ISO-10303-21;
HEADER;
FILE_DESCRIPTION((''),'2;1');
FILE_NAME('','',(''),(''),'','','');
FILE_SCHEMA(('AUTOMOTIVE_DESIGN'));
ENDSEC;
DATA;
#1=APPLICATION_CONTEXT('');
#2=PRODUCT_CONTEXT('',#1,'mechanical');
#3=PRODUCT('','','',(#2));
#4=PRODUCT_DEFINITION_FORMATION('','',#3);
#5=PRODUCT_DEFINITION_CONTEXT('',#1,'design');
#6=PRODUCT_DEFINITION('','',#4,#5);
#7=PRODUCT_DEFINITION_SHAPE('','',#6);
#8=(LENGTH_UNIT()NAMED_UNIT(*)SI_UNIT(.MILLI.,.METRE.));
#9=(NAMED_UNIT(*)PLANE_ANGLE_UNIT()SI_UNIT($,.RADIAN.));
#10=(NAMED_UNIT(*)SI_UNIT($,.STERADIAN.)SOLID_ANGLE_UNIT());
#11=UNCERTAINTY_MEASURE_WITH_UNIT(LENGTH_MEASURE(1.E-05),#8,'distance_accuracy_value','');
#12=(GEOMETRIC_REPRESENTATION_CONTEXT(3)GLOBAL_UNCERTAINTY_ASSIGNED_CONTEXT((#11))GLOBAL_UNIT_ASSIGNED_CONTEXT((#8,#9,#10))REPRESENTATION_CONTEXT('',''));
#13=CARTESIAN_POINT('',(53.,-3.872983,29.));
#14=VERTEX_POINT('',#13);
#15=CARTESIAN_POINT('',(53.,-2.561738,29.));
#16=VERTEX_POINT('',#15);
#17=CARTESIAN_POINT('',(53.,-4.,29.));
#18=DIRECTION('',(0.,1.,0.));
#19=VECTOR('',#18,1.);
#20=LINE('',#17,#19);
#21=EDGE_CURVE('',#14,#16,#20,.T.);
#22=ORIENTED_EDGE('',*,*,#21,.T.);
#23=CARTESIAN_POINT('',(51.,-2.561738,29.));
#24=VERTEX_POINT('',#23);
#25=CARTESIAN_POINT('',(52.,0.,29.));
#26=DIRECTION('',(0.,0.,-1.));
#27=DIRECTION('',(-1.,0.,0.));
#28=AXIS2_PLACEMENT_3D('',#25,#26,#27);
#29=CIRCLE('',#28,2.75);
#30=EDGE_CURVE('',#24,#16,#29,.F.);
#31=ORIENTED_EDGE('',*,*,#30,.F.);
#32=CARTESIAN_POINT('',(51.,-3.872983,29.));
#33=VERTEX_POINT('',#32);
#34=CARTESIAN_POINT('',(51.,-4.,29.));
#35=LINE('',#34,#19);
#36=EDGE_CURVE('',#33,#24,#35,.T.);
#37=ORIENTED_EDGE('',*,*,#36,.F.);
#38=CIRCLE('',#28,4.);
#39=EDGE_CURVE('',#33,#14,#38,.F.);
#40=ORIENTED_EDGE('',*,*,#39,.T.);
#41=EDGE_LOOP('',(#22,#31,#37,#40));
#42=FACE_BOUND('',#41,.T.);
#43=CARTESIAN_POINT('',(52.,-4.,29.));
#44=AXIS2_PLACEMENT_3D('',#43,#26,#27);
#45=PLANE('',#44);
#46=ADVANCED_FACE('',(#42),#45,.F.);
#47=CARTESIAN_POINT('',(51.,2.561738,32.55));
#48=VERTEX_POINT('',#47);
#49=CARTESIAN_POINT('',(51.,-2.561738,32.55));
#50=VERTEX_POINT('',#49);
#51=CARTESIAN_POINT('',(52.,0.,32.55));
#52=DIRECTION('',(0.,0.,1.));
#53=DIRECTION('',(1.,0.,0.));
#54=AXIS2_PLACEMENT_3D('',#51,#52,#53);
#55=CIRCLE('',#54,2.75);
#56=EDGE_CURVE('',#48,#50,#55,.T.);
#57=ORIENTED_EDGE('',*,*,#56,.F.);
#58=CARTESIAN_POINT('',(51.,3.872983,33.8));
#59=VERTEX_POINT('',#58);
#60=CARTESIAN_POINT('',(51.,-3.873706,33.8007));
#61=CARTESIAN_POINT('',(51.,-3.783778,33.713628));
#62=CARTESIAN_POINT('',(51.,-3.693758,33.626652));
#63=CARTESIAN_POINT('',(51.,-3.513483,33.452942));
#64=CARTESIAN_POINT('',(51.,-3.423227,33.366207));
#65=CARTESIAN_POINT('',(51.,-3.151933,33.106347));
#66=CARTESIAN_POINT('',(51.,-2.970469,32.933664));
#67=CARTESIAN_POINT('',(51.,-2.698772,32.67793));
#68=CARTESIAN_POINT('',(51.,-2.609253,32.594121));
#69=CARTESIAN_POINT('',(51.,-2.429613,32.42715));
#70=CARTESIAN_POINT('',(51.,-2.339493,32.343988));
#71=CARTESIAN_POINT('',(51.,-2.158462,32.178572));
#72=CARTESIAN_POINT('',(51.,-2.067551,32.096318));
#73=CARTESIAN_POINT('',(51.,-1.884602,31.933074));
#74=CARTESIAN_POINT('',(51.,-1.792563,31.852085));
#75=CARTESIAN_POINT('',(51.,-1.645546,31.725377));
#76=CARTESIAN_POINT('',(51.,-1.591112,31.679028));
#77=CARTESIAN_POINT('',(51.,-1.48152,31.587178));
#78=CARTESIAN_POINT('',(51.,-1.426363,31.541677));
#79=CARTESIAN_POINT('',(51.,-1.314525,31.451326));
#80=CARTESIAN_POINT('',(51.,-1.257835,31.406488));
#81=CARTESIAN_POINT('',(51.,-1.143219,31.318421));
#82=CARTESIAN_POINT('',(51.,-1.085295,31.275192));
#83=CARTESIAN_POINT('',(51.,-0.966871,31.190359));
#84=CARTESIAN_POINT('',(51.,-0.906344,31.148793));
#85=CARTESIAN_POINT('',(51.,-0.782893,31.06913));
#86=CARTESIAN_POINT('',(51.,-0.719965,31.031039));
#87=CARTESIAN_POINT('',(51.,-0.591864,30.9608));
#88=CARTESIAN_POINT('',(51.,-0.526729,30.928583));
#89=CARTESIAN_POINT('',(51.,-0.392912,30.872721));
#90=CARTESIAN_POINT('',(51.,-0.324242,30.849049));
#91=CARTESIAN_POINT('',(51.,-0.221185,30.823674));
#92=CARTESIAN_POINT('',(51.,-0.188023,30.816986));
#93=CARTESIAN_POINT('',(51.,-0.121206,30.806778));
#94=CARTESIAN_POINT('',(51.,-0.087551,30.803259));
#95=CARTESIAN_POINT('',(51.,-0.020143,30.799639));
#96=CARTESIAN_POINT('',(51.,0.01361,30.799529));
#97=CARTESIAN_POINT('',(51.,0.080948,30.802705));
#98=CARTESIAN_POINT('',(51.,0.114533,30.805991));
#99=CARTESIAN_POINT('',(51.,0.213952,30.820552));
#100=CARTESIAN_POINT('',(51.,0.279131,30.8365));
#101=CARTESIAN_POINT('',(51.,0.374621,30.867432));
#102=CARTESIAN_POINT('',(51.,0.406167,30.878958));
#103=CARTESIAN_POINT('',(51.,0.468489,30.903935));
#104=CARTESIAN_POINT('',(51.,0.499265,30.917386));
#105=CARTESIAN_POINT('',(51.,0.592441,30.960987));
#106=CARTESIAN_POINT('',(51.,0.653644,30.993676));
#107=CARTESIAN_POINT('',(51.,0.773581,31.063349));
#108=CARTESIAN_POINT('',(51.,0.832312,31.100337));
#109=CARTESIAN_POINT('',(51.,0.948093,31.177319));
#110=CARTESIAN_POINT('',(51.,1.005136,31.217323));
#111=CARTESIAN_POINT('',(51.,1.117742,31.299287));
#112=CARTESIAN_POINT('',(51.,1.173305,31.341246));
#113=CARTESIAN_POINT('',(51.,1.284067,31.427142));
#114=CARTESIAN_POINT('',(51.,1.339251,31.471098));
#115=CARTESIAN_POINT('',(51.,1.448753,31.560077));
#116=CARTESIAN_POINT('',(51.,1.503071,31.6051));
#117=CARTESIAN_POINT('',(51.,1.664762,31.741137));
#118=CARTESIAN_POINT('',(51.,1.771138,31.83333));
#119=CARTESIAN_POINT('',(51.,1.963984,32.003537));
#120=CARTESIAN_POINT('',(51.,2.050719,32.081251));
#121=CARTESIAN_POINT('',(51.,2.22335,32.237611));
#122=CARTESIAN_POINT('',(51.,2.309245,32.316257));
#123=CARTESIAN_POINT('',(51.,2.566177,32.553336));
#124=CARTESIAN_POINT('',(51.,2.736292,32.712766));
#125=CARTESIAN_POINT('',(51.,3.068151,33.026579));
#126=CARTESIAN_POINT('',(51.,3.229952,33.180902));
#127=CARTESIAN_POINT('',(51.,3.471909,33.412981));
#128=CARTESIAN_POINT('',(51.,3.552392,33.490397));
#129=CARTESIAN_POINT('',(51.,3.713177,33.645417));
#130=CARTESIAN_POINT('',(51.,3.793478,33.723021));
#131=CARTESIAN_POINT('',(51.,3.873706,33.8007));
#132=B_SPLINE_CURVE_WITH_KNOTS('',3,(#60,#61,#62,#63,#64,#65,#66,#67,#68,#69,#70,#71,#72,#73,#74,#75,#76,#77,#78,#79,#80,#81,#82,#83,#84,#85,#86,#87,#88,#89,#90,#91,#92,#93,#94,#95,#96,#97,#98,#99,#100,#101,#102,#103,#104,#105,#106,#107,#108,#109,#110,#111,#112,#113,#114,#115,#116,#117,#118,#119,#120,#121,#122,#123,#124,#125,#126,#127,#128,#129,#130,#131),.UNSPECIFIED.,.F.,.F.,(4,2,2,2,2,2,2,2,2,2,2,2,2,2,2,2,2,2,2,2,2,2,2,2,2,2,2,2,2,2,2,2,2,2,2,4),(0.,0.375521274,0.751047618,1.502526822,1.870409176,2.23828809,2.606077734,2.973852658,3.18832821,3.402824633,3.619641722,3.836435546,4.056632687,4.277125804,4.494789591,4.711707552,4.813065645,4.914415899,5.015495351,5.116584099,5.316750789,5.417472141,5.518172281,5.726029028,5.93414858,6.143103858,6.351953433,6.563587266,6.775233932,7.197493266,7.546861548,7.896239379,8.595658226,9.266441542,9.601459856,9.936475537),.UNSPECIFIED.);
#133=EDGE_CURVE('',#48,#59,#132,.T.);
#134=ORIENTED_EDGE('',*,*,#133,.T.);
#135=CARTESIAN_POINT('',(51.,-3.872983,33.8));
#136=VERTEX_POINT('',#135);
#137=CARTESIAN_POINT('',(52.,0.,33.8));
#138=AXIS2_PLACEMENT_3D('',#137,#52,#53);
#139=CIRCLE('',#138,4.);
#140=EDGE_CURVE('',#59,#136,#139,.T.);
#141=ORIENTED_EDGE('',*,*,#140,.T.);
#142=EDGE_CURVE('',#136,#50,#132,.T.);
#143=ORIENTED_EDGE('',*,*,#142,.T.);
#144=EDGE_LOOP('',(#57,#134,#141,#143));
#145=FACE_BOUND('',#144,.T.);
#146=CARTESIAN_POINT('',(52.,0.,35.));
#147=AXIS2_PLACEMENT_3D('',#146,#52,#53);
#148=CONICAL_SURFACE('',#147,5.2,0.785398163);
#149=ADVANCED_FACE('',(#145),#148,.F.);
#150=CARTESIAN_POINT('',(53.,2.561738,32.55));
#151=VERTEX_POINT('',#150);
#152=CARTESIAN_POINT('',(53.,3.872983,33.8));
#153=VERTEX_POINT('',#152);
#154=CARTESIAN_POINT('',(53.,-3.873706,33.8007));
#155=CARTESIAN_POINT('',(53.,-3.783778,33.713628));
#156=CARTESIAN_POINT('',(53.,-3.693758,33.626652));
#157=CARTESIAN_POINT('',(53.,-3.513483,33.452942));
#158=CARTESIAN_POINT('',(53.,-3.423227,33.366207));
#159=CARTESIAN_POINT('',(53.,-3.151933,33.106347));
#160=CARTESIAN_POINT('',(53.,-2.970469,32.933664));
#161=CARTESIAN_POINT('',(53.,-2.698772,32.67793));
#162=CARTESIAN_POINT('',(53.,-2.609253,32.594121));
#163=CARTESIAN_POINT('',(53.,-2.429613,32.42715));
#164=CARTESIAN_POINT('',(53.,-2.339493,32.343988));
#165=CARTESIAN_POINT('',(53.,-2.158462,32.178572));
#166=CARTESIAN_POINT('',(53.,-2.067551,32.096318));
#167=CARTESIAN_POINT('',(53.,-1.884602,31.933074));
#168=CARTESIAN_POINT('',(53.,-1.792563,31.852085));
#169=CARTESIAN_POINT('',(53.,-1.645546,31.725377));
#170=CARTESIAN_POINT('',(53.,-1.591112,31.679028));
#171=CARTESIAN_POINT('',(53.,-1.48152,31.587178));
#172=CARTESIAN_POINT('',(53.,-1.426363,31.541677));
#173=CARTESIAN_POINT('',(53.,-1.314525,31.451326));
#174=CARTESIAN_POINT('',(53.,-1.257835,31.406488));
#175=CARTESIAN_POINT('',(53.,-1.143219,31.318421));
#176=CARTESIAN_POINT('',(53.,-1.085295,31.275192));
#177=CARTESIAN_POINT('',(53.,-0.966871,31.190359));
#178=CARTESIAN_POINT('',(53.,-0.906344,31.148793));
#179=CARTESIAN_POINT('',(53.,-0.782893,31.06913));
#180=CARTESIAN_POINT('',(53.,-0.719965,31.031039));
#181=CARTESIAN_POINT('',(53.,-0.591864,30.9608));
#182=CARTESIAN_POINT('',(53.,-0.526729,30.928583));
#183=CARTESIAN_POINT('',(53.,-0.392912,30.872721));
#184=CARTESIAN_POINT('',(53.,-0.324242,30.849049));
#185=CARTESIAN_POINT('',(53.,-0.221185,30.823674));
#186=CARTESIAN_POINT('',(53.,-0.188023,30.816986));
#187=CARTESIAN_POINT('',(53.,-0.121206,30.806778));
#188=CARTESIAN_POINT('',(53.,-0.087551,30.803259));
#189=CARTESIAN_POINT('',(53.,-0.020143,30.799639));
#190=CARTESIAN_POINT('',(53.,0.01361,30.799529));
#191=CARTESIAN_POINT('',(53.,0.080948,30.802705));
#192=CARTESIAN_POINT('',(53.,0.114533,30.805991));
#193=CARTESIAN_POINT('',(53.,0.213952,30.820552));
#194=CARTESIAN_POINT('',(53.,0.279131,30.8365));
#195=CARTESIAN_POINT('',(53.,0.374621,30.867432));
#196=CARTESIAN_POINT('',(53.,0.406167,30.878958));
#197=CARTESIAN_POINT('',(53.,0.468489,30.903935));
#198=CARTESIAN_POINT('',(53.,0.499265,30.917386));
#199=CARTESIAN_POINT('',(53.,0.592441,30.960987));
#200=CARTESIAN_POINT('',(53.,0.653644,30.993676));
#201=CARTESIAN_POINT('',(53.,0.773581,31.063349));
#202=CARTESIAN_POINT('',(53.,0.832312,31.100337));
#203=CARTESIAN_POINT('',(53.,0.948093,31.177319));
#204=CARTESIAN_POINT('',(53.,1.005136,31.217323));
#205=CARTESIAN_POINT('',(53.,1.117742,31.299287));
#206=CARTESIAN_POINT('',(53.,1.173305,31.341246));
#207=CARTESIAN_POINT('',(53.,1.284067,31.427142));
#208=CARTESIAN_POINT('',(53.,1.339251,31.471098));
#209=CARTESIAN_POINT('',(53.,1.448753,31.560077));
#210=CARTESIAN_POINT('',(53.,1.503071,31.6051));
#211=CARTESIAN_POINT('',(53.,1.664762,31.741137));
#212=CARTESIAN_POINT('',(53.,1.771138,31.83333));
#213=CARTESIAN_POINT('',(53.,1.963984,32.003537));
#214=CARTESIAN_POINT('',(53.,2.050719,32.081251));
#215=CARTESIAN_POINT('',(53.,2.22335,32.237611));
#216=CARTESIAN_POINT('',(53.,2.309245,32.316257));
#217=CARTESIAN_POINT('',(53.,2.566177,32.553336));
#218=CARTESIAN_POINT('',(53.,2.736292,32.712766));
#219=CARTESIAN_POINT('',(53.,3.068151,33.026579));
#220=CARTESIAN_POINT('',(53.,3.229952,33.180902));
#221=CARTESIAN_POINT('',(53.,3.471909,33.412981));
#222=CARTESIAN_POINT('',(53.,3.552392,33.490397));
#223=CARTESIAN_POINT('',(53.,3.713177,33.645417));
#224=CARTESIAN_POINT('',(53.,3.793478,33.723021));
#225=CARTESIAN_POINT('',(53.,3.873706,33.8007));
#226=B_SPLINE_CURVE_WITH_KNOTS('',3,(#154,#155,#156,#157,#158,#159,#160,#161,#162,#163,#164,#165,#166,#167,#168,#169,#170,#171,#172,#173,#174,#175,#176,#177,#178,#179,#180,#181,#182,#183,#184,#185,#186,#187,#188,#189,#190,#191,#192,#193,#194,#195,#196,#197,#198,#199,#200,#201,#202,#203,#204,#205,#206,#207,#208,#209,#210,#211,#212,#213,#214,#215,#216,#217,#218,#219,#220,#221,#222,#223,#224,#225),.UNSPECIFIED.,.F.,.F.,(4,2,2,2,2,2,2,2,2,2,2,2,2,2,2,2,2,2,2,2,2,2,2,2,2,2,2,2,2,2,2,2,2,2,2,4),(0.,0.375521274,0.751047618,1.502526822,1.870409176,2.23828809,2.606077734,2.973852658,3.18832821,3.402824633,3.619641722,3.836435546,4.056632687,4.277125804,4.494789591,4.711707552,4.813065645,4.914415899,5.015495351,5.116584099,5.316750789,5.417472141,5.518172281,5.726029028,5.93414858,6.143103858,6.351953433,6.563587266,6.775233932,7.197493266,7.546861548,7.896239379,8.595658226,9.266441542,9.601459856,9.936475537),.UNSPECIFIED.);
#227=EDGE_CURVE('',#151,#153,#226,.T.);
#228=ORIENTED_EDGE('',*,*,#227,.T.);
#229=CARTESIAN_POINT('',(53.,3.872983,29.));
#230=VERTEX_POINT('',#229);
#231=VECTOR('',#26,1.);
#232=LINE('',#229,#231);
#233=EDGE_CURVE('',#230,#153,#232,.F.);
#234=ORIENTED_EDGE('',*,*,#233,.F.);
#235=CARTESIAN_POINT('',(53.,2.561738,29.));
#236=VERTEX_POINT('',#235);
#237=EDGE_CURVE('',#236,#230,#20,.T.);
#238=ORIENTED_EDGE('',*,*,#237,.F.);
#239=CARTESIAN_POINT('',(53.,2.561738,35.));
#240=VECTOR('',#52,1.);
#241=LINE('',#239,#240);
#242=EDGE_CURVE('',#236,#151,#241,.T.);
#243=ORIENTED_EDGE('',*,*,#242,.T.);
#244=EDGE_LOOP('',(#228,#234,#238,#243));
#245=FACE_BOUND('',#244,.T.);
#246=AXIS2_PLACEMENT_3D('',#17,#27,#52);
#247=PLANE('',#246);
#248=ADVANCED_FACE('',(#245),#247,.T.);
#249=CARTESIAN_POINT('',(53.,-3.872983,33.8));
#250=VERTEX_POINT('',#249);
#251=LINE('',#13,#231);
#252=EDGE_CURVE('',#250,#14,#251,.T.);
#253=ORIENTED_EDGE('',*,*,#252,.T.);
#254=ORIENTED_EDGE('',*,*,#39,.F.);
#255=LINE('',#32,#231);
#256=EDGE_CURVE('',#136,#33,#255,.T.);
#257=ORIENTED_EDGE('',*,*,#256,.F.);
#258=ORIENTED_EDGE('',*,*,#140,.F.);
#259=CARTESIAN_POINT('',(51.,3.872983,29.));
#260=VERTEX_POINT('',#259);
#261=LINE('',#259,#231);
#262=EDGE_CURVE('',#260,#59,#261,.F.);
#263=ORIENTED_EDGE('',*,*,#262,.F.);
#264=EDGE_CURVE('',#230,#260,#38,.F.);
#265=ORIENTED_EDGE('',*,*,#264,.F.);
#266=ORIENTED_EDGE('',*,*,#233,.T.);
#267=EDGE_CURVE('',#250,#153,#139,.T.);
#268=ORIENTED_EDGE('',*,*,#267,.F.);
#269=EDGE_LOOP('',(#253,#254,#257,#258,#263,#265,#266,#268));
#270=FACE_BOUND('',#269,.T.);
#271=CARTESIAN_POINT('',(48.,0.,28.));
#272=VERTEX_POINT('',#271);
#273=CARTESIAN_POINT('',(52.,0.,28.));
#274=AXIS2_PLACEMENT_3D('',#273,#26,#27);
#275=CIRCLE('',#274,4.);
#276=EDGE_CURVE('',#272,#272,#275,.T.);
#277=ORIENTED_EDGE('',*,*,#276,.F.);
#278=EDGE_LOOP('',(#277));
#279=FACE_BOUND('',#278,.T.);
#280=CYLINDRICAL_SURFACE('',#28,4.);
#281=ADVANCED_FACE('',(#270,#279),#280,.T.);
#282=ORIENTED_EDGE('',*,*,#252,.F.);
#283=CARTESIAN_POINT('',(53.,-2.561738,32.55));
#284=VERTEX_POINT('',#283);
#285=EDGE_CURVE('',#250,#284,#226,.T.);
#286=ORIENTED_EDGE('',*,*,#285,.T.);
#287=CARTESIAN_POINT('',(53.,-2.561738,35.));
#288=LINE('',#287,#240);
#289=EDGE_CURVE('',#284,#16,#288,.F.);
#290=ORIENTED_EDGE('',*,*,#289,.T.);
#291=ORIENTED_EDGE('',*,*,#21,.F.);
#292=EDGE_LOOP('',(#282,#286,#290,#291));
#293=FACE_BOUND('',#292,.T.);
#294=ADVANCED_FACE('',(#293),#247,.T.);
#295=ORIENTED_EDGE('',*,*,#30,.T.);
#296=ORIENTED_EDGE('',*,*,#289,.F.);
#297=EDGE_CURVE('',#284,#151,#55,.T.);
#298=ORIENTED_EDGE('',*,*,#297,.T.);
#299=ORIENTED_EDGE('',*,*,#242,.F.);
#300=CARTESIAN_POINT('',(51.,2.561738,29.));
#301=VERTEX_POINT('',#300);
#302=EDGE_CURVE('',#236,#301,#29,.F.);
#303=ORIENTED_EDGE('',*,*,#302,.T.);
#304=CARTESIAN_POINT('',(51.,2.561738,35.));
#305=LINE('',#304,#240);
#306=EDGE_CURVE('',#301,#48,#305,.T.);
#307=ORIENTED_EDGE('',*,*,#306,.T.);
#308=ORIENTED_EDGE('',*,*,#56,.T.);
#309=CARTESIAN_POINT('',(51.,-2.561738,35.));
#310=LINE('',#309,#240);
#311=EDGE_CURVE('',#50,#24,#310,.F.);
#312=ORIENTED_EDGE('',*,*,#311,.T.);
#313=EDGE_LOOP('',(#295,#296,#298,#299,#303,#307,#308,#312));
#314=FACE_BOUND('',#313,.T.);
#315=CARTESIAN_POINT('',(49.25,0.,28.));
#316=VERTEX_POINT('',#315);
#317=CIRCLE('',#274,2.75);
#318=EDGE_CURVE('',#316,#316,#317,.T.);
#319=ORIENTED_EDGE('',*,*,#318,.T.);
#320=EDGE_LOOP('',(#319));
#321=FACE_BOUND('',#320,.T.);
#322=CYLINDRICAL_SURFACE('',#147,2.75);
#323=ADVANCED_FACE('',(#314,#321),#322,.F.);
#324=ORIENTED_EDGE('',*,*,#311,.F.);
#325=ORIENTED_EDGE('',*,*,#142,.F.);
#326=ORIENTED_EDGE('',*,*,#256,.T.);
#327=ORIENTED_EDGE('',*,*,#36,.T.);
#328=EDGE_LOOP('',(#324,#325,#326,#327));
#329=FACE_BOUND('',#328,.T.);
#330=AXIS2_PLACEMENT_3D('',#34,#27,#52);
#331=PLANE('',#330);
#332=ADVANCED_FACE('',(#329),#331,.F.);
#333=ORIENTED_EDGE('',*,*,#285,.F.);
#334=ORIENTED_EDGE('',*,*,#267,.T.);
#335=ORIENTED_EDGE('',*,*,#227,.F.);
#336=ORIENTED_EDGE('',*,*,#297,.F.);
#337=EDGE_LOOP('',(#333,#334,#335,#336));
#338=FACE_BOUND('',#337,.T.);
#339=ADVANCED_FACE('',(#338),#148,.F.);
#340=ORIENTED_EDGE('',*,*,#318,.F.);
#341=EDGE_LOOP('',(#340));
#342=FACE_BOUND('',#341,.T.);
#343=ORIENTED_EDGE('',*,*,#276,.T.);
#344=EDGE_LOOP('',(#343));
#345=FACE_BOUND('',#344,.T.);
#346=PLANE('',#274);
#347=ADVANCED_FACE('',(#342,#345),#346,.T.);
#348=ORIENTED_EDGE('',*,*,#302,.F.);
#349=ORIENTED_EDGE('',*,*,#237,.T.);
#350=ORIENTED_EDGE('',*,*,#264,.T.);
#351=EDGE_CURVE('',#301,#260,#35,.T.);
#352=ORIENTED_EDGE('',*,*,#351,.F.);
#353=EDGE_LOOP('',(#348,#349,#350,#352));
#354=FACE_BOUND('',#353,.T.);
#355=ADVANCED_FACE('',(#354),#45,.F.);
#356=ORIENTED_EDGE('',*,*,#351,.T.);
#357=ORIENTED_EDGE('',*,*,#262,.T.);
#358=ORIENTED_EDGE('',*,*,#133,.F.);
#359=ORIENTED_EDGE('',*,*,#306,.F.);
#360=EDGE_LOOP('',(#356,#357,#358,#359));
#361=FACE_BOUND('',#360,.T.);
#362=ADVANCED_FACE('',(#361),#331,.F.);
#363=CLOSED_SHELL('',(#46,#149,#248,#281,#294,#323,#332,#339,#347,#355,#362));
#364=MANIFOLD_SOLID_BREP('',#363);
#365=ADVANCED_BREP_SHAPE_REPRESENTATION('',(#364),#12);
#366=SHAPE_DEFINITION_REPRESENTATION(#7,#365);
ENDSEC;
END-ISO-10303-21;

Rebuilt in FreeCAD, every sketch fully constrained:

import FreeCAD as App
import Part
import Sketcher

V = App.Vector

doc = App.newDocument("Part")
body = doc.addObject("PartDesign::Body", "Body")

# Sketch on XZ plane
sketch1 = body.newObject("Sketcher::SketchObject", "Sketch")
sketch1.AttachmentSupport = (doc.getObject("XZ_Plane"), [""])
sketch1.MapMode = "FlatFace"
sketch1.addGeometry([
    Part.LineSegment(V(48, 35, 0), V(52, 35, 0)),
    Part.LineSegment(V(52, 35, 0), V(52, 28, 0)),
    Part.LineSegment(V(52, 28, 0), V(48, 28, 0)),
    Part.LineSegment(V(48, 28, 0), V(48, 35, 0)),
], False)
sketch1.addGeometry(Part.LineSegment(V(52, 28, 0), V(52, 35, 0)), True)  # axis
sketch1.addConstraint([
    Sketcher.Constraint("Coincident", 0, 2, 1, 1),
    Sketcher.Constraint("Coincident", 1, 2, 2, 1),
    Sketcher.Constraint("Coincident", 2, 2, 3, 1),
    Sketcher.Constraint("Coincident", 3, 2, 0, 1),
    Sketcher.Constraint("Horizontal", 0),
    Sketcher.Constraint("Vertical", 1),
    Sketcher.Constraint("Horizontal", 2),
    Sketcher.Constraint("Vertical", 3),
    Sketcher.Constraint("Vertical", 4),
    Sketcher.Constraint("Coincident", 4, 1, 1, 2),
    Sketcher.Constraint("Horizontal", 3, 2, 4, 2),
    Sketcher.Constraint("DistanceX", 0, 1, 0, 2, 4.0),
    Sketcher.Constraint("DistanceY", 1, 2, 1, 1, 7.0),
    Sketcher.Constraint("DistanceX", -1, 1, 0, 2, 52.0),
    Sketcher.Constraint("DistanceY", -1, 1, 0, 2, 35.0),
])
revolution = body.newObject("PartDesign::Revolution", "Revolution")
revolution.Profile = sketch1
revolution.ReferenceAxis = (sketch1, ["Axis0"])
revolution.Angle = 360

# Sketch on XY plane
sketch2 = body.newObject("Sketcher::SketchObject", "Sketch001")
sketch2.AttachmentSupport = (doc.getObject("XY_Plane"), [""])
sketch2.MapMode = "FlatFace"
sketch2.AttachmentOffset = App.Placement(V(0, 0, 35), App.Rotation())
sketch2.addGeometry(Part.Circle(V(52, 0, 0), V(0, 0, 1), 2.8), False)
sketch2.addConstraint([
    Sketcher.Constraint("PointOnObject", 0, 3, -1),
    Sketcher.Constraint("Diameter", 0, 5.5),
    Sketcher.Constraint("DistanceX", -1, 1, 0, 3, 52.0),
])
doc.recompute()
hole = body.newObject("PartDesign::Hole", "Hole")
hole.Profile = sketch2
hole.ThreadType = "None"
hole.Diameter = 5.5
hole.DepthType = "ThroughAll"
hole.HoleCutType = "Countersink"
hole.HoleCutDiameter = 10.4
hole.HoleCutCountersinkAngle = 90

# Sketch on XZ plane
sketch3 = body.newObject("Sketcher::SketchObject", "Sketch002")
sketch3.AttachmentSupport = (doc.getObject("XZ_Plane"), [""])
sketch3.MapMode = "FlatFace"
sketch3.addGeometry([
    Part.LineSegment(V(51, 29, 0), V(51, 35, 0)),
    Part.LineSegment(V(51, 35, 0), V(52, 35, 0)),
    Part.LineSegment(V(52, 35, 0), V(52, 29, 0)),
    Part.LineSegment(V(52, 29, 0), V(51, 29, 0)),
], False)
sketch3.addConstraint([
    Sketcher.Constraint("Coincident", 0, 2, 1, 1),
    Sketcher.Constraint("Coincident", 1, 2, 2, 1),
    Sketcher.Constraint("Coincident", 2, 2, 3, 1),
    Sketcher.Constraint("Coincident", 3, 2, 0, 1),
    Sketcher.Constraint("Vertical", 0),
    Sketcher.Constraint("Horizontal", 1),
    Sketcher.Constraint("Vertical", 2),
    Sketcher.Constraint("Horizontal", 3),
    Sketcher.Constraint("DistanceX", 1, 1, 1, 2, 1.0),
    Sketcher.Constraint("DistanceY", 0, 1, 0, 2, 6.0),
    Sketcher.Constraint("DistanceX", -1, 1, 0, 2, 51.0),
    Sketcher.Constraint("DistanceY", -1, 1, 0, 2, 35.0),
])
pocket1 = body.newObject("PartDesign::Pocket", "Pocket")
pocket1.Profile = sketch3
pocket1.Length = 133.063954
pocket1.Midplane = True
doc.recompute()

datumplane = body.newObject("PartDesign::Plane", "DatumPlane")
datumplane.AttachmentSupport = (doc.getObject("YZ_Plane"), [""])
datumplane.MapMode = "FlatFace"
datumplane.AttachmentOffset = App.Placement(V(0, 0, 52), App.Rotation())
mirrored = body.newObject("PartDesign::Mirrored", "Mirrored")
mirrored.Originals = [pocket1]
mirrored.MirrorPlane = (datumplane, [""])
body.Tip = mirrored

doc.recompute()
